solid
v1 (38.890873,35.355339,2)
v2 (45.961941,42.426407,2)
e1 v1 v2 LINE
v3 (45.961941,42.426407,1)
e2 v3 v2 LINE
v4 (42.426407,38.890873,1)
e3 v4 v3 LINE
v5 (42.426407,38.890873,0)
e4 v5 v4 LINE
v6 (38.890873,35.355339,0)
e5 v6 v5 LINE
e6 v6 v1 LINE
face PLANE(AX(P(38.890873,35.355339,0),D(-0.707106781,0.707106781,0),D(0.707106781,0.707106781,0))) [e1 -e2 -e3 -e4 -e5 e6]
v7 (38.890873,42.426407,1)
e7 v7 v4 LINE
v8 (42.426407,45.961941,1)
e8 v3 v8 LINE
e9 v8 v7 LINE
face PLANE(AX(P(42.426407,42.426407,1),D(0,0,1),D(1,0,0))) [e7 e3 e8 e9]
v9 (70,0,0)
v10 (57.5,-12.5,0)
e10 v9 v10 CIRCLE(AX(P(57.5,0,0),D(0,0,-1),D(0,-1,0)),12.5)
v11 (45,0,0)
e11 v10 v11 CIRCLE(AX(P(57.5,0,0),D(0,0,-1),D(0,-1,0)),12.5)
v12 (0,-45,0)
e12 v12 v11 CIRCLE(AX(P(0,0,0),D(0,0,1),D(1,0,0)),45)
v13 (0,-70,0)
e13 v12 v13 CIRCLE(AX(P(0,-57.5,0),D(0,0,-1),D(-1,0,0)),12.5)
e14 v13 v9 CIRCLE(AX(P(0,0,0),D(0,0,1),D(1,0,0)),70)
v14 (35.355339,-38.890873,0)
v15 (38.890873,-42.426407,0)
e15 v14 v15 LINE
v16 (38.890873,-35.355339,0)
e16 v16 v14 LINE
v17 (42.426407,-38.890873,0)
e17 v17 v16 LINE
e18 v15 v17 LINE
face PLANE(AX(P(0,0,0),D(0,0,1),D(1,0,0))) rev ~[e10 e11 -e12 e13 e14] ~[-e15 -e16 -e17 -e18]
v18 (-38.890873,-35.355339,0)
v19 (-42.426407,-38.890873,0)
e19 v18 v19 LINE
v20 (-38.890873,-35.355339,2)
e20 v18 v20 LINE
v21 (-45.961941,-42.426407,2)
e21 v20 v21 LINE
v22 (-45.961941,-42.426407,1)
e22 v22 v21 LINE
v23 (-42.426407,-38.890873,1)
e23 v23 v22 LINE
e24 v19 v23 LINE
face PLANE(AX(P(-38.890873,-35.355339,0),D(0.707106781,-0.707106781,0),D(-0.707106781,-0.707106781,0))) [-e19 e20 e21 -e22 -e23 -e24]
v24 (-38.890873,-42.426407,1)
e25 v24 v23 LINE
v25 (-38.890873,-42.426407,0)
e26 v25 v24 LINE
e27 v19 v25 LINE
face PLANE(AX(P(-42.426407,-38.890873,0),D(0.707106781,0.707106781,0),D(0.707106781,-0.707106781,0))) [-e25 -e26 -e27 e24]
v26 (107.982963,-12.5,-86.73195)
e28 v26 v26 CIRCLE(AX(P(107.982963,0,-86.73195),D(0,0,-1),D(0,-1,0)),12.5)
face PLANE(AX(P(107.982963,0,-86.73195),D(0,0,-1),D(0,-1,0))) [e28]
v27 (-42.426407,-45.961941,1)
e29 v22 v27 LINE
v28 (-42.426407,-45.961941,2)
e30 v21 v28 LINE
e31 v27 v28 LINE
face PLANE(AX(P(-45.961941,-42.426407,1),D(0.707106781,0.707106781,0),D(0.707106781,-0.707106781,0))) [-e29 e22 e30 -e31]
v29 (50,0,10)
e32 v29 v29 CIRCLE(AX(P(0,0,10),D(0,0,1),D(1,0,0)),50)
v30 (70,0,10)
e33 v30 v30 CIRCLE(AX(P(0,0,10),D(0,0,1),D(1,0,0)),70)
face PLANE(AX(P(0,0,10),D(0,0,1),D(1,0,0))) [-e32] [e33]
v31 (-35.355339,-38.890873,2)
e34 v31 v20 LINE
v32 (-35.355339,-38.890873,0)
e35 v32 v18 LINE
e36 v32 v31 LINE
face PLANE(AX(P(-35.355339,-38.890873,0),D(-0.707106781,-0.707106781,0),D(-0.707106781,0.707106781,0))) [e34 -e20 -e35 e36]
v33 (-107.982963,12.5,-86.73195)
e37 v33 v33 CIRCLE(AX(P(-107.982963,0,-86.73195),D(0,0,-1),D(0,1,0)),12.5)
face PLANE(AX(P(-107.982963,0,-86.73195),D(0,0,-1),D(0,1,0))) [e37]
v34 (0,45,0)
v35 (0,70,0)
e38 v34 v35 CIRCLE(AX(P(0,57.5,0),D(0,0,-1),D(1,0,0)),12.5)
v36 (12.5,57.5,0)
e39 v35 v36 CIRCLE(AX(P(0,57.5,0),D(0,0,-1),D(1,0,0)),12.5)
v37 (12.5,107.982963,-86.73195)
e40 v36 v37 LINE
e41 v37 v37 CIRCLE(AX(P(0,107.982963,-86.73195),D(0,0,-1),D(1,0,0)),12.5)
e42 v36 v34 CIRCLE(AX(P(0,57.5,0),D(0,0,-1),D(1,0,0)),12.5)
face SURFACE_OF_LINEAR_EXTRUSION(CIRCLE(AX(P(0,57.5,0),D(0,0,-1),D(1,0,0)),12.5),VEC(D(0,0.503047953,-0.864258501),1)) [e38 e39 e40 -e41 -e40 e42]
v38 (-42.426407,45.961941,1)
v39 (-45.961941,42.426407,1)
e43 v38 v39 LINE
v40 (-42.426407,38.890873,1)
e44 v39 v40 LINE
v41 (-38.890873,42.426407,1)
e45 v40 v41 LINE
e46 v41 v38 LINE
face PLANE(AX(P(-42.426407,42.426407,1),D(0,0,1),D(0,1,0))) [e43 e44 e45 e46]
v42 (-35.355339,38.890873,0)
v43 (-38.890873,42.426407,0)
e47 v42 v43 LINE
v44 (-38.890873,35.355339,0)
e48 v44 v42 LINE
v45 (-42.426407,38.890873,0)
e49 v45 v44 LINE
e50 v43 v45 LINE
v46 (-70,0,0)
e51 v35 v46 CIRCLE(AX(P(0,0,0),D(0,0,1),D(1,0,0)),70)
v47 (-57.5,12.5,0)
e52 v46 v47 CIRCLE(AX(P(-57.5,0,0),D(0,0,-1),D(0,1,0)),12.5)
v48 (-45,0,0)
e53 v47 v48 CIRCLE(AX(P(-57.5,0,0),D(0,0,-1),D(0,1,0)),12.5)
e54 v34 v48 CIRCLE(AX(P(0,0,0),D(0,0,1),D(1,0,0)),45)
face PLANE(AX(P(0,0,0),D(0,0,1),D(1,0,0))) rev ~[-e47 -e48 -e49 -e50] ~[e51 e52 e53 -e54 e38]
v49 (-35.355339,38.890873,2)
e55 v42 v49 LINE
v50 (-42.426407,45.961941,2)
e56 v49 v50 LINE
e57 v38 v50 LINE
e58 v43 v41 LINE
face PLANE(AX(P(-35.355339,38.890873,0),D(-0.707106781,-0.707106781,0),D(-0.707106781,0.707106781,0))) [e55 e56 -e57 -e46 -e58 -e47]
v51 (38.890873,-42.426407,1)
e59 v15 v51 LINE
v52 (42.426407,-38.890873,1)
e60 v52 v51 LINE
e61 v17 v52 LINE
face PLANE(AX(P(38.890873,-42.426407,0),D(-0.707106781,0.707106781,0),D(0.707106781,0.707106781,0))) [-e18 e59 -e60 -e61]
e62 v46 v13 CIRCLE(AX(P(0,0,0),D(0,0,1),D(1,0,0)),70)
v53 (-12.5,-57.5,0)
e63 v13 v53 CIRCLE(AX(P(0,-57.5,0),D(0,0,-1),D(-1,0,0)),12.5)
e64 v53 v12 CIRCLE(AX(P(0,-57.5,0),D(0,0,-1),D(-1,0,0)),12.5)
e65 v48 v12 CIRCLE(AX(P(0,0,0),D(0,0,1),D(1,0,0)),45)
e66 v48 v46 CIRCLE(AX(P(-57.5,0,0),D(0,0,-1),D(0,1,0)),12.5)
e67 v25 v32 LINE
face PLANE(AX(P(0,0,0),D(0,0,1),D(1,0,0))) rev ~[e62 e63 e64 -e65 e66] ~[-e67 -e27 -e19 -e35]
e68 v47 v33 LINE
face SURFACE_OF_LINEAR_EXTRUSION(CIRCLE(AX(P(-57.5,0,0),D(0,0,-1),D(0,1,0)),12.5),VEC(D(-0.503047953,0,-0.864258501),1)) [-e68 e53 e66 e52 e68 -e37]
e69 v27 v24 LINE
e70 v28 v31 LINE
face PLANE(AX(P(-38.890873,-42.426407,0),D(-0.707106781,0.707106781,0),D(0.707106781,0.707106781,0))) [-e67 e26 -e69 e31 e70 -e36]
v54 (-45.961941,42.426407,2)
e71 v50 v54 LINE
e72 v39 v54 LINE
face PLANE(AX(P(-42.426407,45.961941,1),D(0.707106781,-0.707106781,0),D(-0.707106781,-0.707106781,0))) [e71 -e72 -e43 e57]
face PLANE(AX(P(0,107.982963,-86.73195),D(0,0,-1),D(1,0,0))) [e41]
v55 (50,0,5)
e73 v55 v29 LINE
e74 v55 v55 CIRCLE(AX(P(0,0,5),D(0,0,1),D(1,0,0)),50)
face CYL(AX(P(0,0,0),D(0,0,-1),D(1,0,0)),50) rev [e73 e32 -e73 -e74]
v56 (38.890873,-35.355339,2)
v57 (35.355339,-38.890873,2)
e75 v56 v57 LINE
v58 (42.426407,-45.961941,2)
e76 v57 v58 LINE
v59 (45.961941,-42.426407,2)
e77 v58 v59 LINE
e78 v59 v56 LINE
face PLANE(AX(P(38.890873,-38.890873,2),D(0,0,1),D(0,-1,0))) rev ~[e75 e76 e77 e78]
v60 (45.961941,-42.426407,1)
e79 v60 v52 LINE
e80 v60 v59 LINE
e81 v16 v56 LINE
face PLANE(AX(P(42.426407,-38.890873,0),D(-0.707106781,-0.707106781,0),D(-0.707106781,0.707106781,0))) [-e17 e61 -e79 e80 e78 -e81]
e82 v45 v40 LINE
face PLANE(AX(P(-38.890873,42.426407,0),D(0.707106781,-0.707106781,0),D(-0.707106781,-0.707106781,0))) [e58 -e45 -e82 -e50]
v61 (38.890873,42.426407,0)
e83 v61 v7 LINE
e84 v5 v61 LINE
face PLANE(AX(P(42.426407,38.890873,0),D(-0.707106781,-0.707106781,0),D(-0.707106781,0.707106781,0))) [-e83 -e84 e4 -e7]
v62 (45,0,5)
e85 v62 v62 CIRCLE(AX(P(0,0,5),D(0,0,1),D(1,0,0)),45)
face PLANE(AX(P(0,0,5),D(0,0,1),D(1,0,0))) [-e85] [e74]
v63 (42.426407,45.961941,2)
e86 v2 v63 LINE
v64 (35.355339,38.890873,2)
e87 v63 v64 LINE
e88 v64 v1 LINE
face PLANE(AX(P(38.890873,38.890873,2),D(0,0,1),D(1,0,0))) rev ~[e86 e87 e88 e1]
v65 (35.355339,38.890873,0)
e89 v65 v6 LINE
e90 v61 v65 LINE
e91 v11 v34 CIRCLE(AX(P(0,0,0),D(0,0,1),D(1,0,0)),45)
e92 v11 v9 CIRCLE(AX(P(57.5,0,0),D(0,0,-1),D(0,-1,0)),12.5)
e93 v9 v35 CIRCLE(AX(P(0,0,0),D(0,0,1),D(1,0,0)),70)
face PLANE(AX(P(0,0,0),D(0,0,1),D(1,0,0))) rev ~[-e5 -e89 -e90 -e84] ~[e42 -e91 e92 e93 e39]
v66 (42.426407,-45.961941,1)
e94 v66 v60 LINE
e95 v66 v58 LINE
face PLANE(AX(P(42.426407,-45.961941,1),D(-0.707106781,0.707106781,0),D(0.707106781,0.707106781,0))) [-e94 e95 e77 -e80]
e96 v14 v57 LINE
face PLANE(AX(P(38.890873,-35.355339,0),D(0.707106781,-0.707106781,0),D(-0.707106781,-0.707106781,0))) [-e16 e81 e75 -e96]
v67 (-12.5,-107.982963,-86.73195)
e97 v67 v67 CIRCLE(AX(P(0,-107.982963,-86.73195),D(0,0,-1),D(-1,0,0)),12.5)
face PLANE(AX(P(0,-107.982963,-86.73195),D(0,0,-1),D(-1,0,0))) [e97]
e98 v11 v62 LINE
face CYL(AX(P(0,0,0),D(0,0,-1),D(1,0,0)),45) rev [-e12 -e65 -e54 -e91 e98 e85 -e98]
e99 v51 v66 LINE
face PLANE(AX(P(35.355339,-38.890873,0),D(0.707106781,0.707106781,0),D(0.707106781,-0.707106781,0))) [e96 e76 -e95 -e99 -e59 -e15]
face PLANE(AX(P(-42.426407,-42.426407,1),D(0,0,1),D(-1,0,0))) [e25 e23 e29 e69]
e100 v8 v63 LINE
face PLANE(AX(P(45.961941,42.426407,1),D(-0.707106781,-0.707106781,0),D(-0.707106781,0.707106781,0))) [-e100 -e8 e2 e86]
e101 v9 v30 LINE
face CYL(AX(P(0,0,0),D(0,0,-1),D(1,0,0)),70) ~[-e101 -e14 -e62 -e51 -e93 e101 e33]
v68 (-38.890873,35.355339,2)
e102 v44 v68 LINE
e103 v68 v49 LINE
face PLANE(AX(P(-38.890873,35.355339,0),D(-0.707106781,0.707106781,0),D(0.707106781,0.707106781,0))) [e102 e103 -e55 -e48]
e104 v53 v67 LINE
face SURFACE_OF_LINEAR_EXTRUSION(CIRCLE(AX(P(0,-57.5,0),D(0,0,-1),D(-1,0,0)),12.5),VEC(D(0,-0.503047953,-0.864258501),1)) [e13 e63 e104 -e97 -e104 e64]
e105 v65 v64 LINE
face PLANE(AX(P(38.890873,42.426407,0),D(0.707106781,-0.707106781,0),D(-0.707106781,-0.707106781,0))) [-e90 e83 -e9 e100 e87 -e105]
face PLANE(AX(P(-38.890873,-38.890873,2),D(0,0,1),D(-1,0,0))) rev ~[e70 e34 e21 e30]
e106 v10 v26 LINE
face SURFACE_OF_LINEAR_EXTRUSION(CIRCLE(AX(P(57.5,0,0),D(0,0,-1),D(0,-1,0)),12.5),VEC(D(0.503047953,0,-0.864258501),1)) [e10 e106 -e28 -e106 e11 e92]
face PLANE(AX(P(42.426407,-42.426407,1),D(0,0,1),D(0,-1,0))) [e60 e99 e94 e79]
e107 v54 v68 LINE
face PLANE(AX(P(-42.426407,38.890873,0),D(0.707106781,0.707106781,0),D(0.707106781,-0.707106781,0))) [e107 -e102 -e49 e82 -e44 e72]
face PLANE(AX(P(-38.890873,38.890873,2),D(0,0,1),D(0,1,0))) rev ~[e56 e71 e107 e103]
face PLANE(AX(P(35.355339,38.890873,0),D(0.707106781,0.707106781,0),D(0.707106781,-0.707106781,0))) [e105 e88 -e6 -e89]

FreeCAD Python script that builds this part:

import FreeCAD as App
import Part
import Sketcher
from FreeCAD import Vector

doc = App.newDocument("Part")
body = doc.addObject("PartDesign::Body", "Body")

sketch1 = body.newObject("Sketcher::SketchObject", "Sketch")
sketch1.AttachmentSupport = (doc.getObject("XY_Plane"), [""])
sketch1.MapMode = "FlatFace"
sketch1.addGeometry(Part.Circle(Vector(0, 0, 0), Vector(0, 0, 1), 70), False)
sketch1.addGeometry(Part.Circle(Vector(0, 0, 0), Vector(0, 0, 1), 50), False)
sketch1.addConstraint(Sketcher.Constraint("Coincident", 0, 3, -1, 1))
sketch1.addConstraint(Sketcher.Constraint("Coincident", 1, 3, -1, 1))
sketch1.addConstraint(Sketcher.Constraint("Diameter", 0, 140.0))
sketch1.addConstraint(Sketcher.Constraint("Diameter", 1, 100.0))
pad1 = body.newObject("PartDesign::Pad", "Pad")
pad1.Profile = sketch1
pad1.Length = 10

sketch2 = body.newObject("Sketcher::SketchObject", "Sketch001")
sketch2.AttachmentSupport = (doc.getObject("XY_Plane"), [""])
sketch2.MapMode = "FlatFace"
sketch2.addGeometry(Part.Circle(Vector(0, 0, 0), Vector(0, 0, 1), 50), False)
sketch2.addGeometry(Part.Circle(Vector(0, 0, 0), Vector(0, 0, 1), 45), False)
sketch2.addConstraint(Sketcher.Constraint("Coincident", 0, 3, -1, 1))
sketch2.addConstraint(Sketcher.Constraint("Coincident", 1, 3, -1, 1))
sketch2.addConstraint(Sketcher.Constraint("Diameter", 0, 100.0))
sketch2.addConstraint(Sketcher.Constraint("Diameter", 1, 90.0))
pad2 = body.newObject("PartDesign::Pad", "Pad001")
pad2.Profile = sketch2
pad2.Length = 5

sketch3 = body.newObject("Sketcher::SketchObject", "Sketch002")
sketch3.AttachmentSupport = (doc.getObject("XY_Plane"), [""])
sketch3.MapMode = "FlatFace"
sketch3.addGeometry(Part.Circle(Vector(0, -57.5, 0), Vector(0, 0, 1), 12.5), False)
sketch3.addConstraint(Sketcher.Constraint("PointOnObject", 0, 3, -2))
sketch3.addConstraint(Sketcher.Constraint("Diameter", 0, 25.0))
sketch3.addConstraint(Sketcher.Constraint("DistanceY", 0, 3, -1, 1, 57.5))

sketch4 = body.newObject("Sketcher::SketchObject", "Sketch003")
sketch4.Placement = App.Placement(Vector(0, -42.949209, 24.9989), App.Rotation(Vector(0, 0.503047953, 0.864258501), Vector(1, 0, 0), Vector(0, 0.864258501, -0.503047953), "ZXY"))
sketch4.addGeometry(Part.LineSegment(Vector(-28.925257, 0, 0), Vector(-129.279433, 0, 0)), False)
sketch4.addConstraint(Sketcher.Constraint("Horizontal", 0))
sketch4.addConstraint(Sketcher.Constraint("PointOnObject", 0, 1, -1))
sketch4.addConstraint(Sketcher.Constraint("DistanceX", 0, 2, 0, 1, 100.354176))
sketch4.addConstraint(Sketcher.Constraint("DistanceX", 0, 1, -1, 1, 28.925257))
doc.recompute()

additivepipe = body.newObject("PartDesign::AdditivePipe", "AdditivePipe")
additivepipe.Profile = sketch3
additivepipe.Spine = (sketch4, ["Edge1"])
doc.recompute()

polarpattern = body.newObject("PartDesign::PolarPattern", "PolarPattern")
polarpattern.Originals = [additivepipe]
polarpattern.Axis = (doc.getObject("Z_Axis"), [""])
polarpattern.Angle = 360
polarpattern.Occurrences = 4
body.Tip = polarpattern

sketch5 = body.newObject("Sketcher::SketchObject", "Sketch004")
sketch5.AttachmentSupport = (doc.getObject("XY_Plane"), [""])
sketch5.MapMode = "FlatFace"
sketch5.addGeometry(Part.LineSegment(Vector(35.355339, 38.890873, 0), Vector(38.890873, 42.426407, 0)), False)
sketch5.addGeometry(Part.LineSegment(Vector(38.890873, 42.426407, 0), Vector(42.426407, 38.890873, 0)), False)
sketch5.addGeometry(Part.LineSegment(Vector(42.426407, 38.890873, 0), Vector(38.890873, 35.355339, 0)), False)
sketch5.addGeometry(Part.LineSegment(Vector(38.890873, 35.355339, 0), Vector(35.355339, 38.890873, 0)), False)
sketch5.addConstraint(Sketcher.Constraint("Coincident", 0, 2, 1, 1))
sketch5.addConstraint(Sketcher.Constraint("Coincident", 1, 2, 2, 1))
sketch5.addConstraint(Sketcher.Constraint("Coincident", 2, 2, 3, 1))
sketch5.addConstraint(Sketcher.Constraint("Coincident", 3, 2, 0, 1))
sketch5.addConstraint(Sketcher.Constraint("Perpendicular", 0, 1))
sketch5.addConstraint(Sketcher.Constraint("Perpendicular", 1, 2))
sketch5.addConstraint(Sketcher.Constraint("Perpendicular", 2, 3))
sketch5.addConstraint(Sketcher.Constraint("Horizontal", 1, 2, 3, 2))
sketch5.addConstraint(Sketcher.Constraint("Vertical", 0, 2, 2, 2))
sketch5.addConstraint(Sketcher.Constraint("Distance", 0, 5.0))
sketch5.addConstraint(Sketcher.Constraint("DistanceY", -1, 1, 2, 2, 35.355339))
sketch5.addConstraint(Sketcher.Constraint("DistanceX", -1, 1, 3, 2, 35.355339))
pocket1 = body.newObject("PartDesign::Pocket", "Pocket")
pocket1.Profile = sketch5
pocket1.Length = 2
pocket1.Reversed = True

sketch6 = body.newObject("Sketcher::SketchObject", "Sketch005")
sketch6.AttachmentSupport = (doc.getObject("XY_Plane"), [""])
sketch6.MapMode = "FlatFace"
sketch6.AttachmentOffset = App.Placement(Vector(0, 0, 1), App.Rotation())
sketch6.addGeometry(Part.LineSegment(Vector(45.961941, 42.426407, 0), Vector(42.426407, 38.890873, 0)), False)
sketch6.addGeometry(Part.LineSegment(Vector(42.426407, 38.890873, 0), Vector(38.890873, 42.426407, 0)), False)
sketch6.addGeometry(Part.LineSegment(Vector(38.890873, 42.426407, 0), Vector(42.426407, 45.961941, 0)), False)
sketch6.addGeometry(Part.LineSegment(Vector(42.426407, 45.961941, 0), Vector(45.961941, 42.426407, 0)), False)
sketch6.addConstraint(Sketcher.Constraint("Coincident", 0, 2, 1, 1))
sketch6.addConstraint(Sketcher.Constraint("Coincident", 1, 2, 2, 1))
sketch6.addConstraint(Sketcher.Constraint("Coincident", 2, 2, 3, 1))
sketch6.addConstraint(Sketcher.Constraint("Coincident", 3, 2, 0, 1))
sketch6.addConstraint(Sketcher.Constraint("Perpendicular", 0, 1))
sketch6.addConstraint(Sketcher.Constraint("Perpendicular", 1, 2))
sketch6.addConstraint(Sketcher.Constraint("Perpendicular", 2, 3))
sketch6.addConstraint(Sketcher.Constraint("Horizontal", 1, 2, 3, 2))
sketch6.addConstraint(Sketcher.Constraint("Vertical", 0, 2, 2, 2))
sketch6.addConstraint(Sketcher.Constraint("Distance", 0, 5.0))
sketch6.addConstraint(Sketcher.Constraint("DistanceY", -1, 1, 2, 2, 45.961941))
sketch6.addConstraint(Sketcher.Constraint("DistanceX", -1, 1, 3, 2, 45.961941))
pocket2 = body.newObject("PartDesign::Pocket", "Pocket001")
pocket2.Profile = sketch6
pocket2.Length = 1
pocket2.Reversed = True
doc.recompute()

polarpattern2 = body.newObject("PartDesign::PolarPattern", "PolarPattern001")
polarpattern2.Originals = [pocket1, pocket2]
polarpattern2.Axis = (doc.getObject("Z_Axis"), [""])
polarpattern2.Angle = 360
polarpattern2.Occurrences = 4
body.Tip = polarpattern2

doc.recompute()
